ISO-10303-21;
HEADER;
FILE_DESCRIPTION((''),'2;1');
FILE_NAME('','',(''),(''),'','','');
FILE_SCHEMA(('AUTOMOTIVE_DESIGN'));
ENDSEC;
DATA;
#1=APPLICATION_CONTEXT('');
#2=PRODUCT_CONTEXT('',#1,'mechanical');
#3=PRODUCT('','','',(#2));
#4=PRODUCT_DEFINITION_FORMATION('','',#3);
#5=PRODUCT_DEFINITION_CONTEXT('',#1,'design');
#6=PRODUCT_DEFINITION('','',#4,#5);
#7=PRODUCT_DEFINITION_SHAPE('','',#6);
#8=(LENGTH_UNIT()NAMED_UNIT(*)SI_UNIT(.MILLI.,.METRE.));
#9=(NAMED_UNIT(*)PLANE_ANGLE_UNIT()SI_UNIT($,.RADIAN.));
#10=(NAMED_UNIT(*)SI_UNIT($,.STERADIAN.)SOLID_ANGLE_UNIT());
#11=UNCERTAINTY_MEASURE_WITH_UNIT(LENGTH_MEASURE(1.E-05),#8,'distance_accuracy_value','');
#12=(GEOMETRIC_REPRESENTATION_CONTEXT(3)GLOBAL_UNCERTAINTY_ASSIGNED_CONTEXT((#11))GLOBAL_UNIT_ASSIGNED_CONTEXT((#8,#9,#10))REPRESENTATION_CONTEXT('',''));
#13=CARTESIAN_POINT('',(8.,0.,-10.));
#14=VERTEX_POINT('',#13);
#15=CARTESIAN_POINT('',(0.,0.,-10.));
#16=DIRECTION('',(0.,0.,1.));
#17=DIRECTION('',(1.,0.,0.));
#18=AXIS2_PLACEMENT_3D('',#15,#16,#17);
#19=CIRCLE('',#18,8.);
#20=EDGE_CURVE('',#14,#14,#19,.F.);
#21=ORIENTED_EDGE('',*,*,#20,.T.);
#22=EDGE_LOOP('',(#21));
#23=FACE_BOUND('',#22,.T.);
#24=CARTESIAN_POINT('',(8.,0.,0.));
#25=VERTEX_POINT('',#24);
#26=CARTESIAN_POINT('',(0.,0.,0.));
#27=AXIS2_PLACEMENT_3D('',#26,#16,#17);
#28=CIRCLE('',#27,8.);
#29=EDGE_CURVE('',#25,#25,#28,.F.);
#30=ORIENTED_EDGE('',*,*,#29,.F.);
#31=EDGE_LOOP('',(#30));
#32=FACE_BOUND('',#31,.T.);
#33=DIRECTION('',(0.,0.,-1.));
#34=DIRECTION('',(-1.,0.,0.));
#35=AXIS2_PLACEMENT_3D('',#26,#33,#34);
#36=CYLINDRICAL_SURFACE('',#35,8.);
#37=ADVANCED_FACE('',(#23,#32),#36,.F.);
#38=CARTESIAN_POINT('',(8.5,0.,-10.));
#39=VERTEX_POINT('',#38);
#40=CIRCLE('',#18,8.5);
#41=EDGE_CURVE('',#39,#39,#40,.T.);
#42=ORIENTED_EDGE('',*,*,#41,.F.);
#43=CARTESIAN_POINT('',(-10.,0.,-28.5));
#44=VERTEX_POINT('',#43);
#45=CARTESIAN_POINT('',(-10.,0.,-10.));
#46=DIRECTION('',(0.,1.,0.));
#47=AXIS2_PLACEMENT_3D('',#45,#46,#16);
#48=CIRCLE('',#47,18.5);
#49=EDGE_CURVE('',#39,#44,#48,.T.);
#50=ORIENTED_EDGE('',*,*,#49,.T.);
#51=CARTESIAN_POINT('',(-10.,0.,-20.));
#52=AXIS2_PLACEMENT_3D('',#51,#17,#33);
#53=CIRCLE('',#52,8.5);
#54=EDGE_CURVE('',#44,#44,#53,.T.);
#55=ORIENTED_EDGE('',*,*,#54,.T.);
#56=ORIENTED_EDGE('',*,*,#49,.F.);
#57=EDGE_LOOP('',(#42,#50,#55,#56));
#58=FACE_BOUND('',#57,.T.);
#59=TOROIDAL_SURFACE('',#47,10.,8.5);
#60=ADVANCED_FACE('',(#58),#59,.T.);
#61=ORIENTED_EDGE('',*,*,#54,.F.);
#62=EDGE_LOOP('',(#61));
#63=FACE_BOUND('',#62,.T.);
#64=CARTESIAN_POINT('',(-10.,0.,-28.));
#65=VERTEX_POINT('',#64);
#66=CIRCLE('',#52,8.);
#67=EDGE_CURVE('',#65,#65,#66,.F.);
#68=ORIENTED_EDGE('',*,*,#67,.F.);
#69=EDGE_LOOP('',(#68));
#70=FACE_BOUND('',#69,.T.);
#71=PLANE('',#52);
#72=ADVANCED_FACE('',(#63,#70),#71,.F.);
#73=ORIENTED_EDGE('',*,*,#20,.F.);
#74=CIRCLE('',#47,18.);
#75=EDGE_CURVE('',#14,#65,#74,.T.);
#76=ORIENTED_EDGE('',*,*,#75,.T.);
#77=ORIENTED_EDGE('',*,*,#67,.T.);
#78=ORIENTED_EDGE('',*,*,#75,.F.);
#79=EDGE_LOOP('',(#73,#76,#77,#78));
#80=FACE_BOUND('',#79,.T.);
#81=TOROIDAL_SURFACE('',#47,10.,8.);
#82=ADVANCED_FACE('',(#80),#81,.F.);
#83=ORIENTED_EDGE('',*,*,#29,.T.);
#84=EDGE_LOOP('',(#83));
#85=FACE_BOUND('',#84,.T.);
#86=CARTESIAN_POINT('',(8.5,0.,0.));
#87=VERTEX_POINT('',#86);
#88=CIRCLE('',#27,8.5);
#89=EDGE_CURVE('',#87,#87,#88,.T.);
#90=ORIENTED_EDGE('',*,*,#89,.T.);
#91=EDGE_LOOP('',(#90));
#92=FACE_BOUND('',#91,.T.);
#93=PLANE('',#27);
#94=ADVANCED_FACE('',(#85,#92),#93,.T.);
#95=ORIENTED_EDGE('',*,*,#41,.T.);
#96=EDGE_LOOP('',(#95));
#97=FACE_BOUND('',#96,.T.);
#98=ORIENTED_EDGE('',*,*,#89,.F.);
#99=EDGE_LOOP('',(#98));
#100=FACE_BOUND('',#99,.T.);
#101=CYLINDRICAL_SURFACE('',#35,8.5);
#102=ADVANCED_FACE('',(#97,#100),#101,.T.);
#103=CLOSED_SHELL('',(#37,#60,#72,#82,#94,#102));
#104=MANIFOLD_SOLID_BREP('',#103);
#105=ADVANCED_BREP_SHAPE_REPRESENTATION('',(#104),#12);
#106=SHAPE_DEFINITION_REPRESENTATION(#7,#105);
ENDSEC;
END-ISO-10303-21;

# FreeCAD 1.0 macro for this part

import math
import FreeCAD as App
import Part
import Sketcher
Q = App.Units.Quantity

doc = App.newDocument("Part")
body = doc.addObject("PartDesign::Body", "Body")

sketch1 = doc.addObject("Sketcher::SketchObject", "Sketch")
body.addObject(sketch1)
sketch1.AttachmentSupport = (doc.XY_Plane, [""])
sketch1.MapMode = "FlatFace"
sketch1.addGeometry([
    Part.Circle(App.Vector(0, 0, 0), App.Vector(0, 0, 1), 8),
    Part.Circle(App.Vector(0, 0, 0), App.Vector(0, 0, 1), 8),
], False)
sketch1.addConstraint([
    Sketcher.Constraint("Coincident", 0, 3, -1, 1),
    Sketcher.Constraint("Coincident", 1, 3, -1, 1),
    Sketcher.Constraint("Diameter", 0, Q("17 mm")),
    Sketcher.Constraint("Diameter", 1, Q("16 mm")),
])

sketch2 = doc.addObject("Sketcher::SketchObject", "Sketch001")
body.addObject(sketch2)
sketch2.AttachmentSupport = (doc.XZ_Plane, [""])
sketch2.MapMode = "FlatFace"
sketch2.addGeometry([
    Part.LineSegment(App.Vector(0, 0, 0), App.Vector(0, -10, 0)),
    Part.ArcOfCircle(Part.Circle(App.Vector(-10, -10, 0), App.Vector(0, 0, 1), 10), math.radians(-90), math.radians(0)),
], False)
sketch2.addConstraint([
    Sketcher.Constraint("Tangent", 0, 2, 1, 2),
    Sketcher.Constraint("Vertical", 0),
    Sketcher.Constraint("Coincident", 0, 1, -1, 1),
    Sketcher.Constraint("Radius", 1, Q("10 mm")),
    Sketcher.Constraint("DistanceY", 0, 2, 0, 1, Q("10 mm")),
    Sketcher.Constraint("DistanceX", 1, 1, -1, 1, Q("10 mm")),
])
doc.recompute()

additivepipe = doc.addObject("PartDesign::AdditivePipe", "AdditivePipe")
body.addObject(additivepipe)
additivepipe.Profile = sketch1
additivepipe.Spine = (sketch2, ["Edge1", "Edge2"])

doc.recompute()
